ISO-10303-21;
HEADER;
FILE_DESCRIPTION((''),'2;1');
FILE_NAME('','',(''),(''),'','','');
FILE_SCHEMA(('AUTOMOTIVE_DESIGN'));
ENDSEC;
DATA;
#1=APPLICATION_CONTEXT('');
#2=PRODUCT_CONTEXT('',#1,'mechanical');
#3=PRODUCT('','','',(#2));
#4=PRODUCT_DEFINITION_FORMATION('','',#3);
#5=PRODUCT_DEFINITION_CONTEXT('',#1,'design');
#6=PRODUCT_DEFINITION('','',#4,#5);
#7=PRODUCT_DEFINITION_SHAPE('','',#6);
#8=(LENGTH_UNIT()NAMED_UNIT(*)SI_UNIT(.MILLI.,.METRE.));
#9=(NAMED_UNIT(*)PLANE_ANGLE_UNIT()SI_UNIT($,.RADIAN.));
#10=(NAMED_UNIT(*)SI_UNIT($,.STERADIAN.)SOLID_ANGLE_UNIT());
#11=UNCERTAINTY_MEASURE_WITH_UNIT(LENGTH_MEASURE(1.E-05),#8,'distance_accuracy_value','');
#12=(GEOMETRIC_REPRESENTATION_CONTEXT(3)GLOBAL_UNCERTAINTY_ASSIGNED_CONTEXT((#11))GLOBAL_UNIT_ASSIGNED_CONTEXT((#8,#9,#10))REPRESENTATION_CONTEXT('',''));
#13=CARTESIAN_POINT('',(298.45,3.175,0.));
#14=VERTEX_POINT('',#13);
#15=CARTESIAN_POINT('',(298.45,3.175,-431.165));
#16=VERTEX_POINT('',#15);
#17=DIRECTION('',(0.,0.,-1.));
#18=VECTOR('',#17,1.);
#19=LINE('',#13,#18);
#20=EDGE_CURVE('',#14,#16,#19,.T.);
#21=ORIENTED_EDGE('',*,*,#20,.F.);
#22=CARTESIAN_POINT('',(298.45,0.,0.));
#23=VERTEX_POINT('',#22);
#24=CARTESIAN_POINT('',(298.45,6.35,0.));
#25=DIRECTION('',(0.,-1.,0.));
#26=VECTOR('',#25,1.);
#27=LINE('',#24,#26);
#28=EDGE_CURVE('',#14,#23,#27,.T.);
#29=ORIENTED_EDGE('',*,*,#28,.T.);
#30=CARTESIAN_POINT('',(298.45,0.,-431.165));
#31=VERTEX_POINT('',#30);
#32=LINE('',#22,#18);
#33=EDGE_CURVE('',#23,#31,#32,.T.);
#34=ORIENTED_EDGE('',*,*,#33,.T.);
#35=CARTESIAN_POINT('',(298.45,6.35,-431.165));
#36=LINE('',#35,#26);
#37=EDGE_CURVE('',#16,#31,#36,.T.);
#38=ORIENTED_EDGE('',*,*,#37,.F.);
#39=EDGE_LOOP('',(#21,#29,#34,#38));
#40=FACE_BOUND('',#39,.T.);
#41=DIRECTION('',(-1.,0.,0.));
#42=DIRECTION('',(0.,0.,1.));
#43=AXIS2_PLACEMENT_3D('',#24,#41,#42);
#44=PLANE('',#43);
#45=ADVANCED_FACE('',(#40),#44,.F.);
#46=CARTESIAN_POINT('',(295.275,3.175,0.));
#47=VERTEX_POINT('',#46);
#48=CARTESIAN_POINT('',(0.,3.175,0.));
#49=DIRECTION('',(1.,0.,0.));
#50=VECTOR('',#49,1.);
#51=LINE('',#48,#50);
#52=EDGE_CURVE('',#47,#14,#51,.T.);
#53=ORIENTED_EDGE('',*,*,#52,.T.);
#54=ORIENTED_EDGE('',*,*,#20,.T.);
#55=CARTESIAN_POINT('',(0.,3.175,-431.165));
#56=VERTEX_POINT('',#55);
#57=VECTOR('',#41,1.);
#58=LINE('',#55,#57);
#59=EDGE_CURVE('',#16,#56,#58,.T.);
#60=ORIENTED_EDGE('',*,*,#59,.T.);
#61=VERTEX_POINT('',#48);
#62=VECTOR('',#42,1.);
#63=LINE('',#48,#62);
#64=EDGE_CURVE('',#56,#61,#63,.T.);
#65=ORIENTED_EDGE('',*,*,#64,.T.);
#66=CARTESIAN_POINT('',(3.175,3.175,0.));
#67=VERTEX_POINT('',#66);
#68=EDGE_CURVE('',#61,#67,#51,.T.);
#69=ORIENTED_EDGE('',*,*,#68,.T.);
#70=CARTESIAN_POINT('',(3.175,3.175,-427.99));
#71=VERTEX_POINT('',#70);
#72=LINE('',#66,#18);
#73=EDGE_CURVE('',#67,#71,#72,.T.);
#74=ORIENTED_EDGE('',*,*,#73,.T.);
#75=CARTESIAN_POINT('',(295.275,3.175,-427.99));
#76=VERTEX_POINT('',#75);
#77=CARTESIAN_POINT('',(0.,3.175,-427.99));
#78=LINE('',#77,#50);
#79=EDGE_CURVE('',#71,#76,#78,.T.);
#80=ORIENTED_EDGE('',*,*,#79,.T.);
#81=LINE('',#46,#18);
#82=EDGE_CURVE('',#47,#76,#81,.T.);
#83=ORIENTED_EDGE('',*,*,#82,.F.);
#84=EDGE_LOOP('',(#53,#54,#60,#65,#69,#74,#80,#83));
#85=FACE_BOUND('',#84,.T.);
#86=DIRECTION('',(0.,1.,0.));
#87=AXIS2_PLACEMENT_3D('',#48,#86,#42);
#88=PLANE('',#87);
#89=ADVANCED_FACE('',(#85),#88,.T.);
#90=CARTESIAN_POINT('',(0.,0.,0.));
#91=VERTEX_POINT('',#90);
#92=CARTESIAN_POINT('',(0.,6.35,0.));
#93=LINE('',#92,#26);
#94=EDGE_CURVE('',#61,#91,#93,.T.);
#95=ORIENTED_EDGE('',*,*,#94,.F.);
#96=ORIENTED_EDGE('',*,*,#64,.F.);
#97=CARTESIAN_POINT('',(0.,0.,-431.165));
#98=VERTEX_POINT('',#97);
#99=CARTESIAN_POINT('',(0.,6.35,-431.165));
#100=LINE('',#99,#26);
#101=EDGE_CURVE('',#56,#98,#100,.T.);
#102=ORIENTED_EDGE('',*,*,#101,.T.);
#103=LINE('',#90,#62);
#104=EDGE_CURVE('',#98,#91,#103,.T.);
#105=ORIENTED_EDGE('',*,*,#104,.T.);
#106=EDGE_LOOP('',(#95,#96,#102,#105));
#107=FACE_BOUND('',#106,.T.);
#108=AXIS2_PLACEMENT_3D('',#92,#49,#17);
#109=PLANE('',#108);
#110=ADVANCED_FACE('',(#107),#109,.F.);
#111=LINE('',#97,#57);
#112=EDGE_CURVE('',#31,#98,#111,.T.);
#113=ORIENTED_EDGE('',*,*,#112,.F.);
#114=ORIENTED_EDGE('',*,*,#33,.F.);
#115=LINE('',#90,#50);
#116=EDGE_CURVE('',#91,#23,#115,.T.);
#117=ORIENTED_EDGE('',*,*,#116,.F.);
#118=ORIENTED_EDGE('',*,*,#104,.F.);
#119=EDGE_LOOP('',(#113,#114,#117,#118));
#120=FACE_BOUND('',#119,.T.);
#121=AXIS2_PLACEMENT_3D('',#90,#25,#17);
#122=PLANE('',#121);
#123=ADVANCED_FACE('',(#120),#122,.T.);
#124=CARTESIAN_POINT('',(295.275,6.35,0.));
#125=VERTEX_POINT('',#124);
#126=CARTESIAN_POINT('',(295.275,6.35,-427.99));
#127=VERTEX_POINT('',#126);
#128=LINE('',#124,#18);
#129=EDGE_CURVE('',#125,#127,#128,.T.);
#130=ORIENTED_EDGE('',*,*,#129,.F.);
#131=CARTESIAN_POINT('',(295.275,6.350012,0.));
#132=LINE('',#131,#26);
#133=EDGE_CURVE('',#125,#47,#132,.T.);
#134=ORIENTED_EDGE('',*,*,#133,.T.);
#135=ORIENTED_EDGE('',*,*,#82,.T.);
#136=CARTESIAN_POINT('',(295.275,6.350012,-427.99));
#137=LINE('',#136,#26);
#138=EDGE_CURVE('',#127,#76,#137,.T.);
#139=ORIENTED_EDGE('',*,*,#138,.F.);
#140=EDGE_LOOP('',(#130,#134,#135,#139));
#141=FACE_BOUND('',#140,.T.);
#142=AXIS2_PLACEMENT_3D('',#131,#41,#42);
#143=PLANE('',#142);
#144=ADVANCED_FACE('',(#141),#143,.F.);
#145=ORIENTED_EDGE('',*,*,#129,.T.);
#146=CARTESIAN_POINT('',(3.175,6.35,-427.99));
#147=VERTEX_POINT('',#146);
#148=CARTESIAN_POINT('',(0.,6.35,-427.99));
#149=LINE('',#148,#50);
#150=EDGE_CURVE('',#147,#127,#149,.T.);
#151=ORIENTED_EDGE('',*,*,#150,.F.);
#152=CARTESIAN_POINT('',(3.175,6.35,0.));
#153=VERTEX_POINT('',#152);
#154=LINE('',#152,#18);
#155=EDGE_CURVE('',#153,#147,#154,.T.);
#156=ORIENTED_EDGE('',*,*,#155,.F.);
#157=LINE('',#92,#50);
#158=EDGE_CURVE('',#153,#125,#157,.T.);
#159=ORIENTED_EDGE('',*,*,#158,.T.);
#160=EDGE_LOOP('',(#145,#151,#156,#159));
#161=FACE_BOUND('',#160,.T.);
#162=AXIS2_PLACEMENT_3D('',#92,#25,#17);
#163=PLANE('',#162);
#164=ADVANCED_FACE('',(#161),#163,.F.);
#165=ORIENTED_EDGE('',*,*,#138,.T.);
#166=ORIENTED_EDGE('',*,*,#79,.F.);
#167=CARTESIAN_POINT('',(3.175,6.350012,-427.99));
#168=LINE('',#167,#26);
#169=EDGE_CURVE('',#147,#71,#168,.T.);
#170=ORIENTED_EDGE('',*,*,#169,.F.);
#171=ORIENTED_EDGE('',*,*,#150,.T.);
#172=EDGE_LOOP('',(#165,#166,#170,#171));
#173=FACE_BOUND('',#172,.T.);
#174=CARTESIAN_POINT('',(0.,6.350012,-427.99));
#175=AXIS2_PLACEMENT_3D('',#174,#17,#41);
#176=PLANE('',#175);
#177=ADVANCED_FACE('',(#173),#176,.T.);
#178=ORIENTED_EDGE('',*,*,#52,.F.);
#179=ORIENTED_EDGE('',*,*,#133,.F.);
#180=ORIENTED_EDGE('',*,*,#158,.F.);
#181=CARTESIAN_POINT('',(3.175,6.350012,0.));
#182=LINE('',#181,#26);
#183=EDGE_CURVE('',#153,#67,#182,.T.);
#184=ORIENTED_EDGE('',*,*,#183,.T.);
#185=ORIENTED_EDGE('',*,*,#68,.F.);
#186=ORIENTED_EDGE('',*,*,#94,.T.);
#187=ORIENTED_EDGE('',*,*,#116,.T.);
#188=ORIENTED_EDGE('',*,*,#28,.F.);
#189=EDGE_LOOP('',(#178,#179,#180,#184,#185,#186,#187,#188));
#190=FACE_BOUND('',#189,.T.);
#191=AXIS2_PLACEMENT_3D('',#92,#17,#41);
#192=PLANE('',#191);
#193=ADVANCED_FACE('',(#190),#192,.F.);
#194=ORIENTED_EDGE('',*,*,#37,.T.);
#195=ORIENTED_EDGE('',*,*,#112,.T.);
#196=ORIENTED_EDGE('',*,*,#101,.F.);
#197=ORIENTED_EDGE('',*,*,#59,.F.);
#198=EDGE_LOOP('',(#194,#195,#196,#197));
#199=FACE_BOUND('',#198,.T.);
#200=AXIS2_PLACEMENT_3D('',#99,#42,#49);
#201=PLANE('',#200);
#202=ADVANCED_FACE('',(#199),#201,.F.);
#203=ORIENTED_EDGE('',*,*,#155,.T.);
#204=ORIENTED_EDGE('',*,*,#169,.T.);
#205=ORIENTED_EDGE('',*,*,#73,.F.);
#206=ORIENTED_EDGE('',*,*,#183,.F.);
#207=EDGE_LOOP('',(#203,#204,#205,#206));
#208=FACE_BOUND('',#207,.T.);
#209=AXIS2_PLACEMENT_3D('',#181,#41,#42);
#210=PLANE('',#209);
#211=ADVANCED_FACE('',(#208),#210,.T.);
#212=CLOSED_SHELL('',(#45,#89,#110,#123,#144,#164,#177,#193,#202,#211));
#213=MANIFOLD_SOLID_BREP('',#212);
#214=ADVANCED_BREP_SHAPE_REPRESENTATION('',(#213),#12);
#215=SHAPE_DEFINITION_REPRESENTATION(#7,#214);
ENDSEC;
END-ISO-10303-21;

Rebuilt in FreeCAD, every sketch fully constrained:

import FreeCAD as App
import Part
import Sketcher
from FreeCAD import Vector
Q = App.Units.Quantity


def add_polygon(sketch, points):
    """Adds a closed chain of lines whose ends are joined by coincident constraints."""
    first, n = sketch.GeometryCount, len(points)
    for a, b in zip(points, points[1:] + points[:1]):
        sketch.addGeometry(Part.LineSegment(App.Vector(*a, 0), App.Vector(*b, 0)), False)
    for i in range(n):
        sketch.addConstraint(Sketcher.Constraint("Coincident", first + i, 2, first + (i + 1) % n, 1))

doc = App.newDocument("Part")
body = doc.addObject("PartDesign::Body", "Body")

sketch1 = body.newObject("Sketcher::SketchObject", "Sketch")
sketch1.AttachmentSupport = (doc.getObject("XZ_Plane"), [""])
sketch1.MapMode = "FlatFace"
add_polygon(sketch1, [(0, -431), (0, 0), (298, 0), (298, -431)])
sketch1.addConstraint([
    Sketcher.Constraint("Vertical", 0),
    Sketcher.Constraint("Horizontal", 1),
    Sketcher.Constraint("Vertical", 2),
    Sketcher.Constraint("Horizontal", 3),
    Sketcher.Constraint("Coincident", 0, 2, -1, 1),
    Sketcher.Constraint("DistanceX", 1, 1, 1, 2, Q("11.75 in")),
    Sketcher.Constraint("DistanceY", 0, 1, 0, 2, Q("16.975 in")),
])
pad1 = body.newObject("PartDesign::Pad", "Pad")
pad1.Profile = sketch1
pad1.Length = Q("0.25 in")
pad1.Reversed = True

sketch2 = body.newObject("Sketcher::SketchObject", "Sketch001")
sketch2.AttachmentSupport = (doc.getObject("XZ_Plane"), [""])
sketch2.MapMode = "FlatFace"
sketch2.AttachmentOffset = App.Placement(Vector(0, 0, -0.25 * 25.4), App.Rotation())
add_polygon(sketch2, [(0, 0), (3.2, 0), (3.2, -428), (295.3, -428), (295.3, 0), (298.4, 0), (298.4, -431.2), (0, -431.2)])
sketch2.addConstraint([
    Sketcher.Constraint("Horizontal", 0),
    Sketcher.Constraint("Vertical", 1),
    Sketcher.Constraint("Horizontal", 2),
    Sketcher.Constraint("Vertical", 3),
    Sketcher.Constraint("Horizontal", 4),
    Sketcher.Constraint("Vertical", 5),
    Sketcher.Constraint("Horizontal", 6),
    Sketcher.Constraint("Vertical", 7),
    Sketcher.Constraint("Coincident", 7, 2, -1, 1),
    Sketcher.Constraint("PointOnObject", 3, 2, -1),
    Sketcher.Constraint("Equal", 0, 4),
    Sketcher.Constraint("DistanceX", 2, 1, 2, 2, Q("11.5 in")),
    Sketcher.Constraint("DistanceX", 6, 2, 6, 1, Q("11.75 in")),
    Sketcher.Constraint("DistanceY", 1, 2, 1, 1, Q("16.85 in")),
    Sketcher.Constraint("DistanceY", 5, 2, 5, 1, Q("16.975 in")),
])
pocket1 = body.newObject("PartDesign::Pocket", "Pocket")
pocket1.Profile = sketch2
pocket1.Type = "TwoLengths"
pocket1.Length = 525.419662
pocket1.Length2 = Q("0.125 in")

doc.recompute()
